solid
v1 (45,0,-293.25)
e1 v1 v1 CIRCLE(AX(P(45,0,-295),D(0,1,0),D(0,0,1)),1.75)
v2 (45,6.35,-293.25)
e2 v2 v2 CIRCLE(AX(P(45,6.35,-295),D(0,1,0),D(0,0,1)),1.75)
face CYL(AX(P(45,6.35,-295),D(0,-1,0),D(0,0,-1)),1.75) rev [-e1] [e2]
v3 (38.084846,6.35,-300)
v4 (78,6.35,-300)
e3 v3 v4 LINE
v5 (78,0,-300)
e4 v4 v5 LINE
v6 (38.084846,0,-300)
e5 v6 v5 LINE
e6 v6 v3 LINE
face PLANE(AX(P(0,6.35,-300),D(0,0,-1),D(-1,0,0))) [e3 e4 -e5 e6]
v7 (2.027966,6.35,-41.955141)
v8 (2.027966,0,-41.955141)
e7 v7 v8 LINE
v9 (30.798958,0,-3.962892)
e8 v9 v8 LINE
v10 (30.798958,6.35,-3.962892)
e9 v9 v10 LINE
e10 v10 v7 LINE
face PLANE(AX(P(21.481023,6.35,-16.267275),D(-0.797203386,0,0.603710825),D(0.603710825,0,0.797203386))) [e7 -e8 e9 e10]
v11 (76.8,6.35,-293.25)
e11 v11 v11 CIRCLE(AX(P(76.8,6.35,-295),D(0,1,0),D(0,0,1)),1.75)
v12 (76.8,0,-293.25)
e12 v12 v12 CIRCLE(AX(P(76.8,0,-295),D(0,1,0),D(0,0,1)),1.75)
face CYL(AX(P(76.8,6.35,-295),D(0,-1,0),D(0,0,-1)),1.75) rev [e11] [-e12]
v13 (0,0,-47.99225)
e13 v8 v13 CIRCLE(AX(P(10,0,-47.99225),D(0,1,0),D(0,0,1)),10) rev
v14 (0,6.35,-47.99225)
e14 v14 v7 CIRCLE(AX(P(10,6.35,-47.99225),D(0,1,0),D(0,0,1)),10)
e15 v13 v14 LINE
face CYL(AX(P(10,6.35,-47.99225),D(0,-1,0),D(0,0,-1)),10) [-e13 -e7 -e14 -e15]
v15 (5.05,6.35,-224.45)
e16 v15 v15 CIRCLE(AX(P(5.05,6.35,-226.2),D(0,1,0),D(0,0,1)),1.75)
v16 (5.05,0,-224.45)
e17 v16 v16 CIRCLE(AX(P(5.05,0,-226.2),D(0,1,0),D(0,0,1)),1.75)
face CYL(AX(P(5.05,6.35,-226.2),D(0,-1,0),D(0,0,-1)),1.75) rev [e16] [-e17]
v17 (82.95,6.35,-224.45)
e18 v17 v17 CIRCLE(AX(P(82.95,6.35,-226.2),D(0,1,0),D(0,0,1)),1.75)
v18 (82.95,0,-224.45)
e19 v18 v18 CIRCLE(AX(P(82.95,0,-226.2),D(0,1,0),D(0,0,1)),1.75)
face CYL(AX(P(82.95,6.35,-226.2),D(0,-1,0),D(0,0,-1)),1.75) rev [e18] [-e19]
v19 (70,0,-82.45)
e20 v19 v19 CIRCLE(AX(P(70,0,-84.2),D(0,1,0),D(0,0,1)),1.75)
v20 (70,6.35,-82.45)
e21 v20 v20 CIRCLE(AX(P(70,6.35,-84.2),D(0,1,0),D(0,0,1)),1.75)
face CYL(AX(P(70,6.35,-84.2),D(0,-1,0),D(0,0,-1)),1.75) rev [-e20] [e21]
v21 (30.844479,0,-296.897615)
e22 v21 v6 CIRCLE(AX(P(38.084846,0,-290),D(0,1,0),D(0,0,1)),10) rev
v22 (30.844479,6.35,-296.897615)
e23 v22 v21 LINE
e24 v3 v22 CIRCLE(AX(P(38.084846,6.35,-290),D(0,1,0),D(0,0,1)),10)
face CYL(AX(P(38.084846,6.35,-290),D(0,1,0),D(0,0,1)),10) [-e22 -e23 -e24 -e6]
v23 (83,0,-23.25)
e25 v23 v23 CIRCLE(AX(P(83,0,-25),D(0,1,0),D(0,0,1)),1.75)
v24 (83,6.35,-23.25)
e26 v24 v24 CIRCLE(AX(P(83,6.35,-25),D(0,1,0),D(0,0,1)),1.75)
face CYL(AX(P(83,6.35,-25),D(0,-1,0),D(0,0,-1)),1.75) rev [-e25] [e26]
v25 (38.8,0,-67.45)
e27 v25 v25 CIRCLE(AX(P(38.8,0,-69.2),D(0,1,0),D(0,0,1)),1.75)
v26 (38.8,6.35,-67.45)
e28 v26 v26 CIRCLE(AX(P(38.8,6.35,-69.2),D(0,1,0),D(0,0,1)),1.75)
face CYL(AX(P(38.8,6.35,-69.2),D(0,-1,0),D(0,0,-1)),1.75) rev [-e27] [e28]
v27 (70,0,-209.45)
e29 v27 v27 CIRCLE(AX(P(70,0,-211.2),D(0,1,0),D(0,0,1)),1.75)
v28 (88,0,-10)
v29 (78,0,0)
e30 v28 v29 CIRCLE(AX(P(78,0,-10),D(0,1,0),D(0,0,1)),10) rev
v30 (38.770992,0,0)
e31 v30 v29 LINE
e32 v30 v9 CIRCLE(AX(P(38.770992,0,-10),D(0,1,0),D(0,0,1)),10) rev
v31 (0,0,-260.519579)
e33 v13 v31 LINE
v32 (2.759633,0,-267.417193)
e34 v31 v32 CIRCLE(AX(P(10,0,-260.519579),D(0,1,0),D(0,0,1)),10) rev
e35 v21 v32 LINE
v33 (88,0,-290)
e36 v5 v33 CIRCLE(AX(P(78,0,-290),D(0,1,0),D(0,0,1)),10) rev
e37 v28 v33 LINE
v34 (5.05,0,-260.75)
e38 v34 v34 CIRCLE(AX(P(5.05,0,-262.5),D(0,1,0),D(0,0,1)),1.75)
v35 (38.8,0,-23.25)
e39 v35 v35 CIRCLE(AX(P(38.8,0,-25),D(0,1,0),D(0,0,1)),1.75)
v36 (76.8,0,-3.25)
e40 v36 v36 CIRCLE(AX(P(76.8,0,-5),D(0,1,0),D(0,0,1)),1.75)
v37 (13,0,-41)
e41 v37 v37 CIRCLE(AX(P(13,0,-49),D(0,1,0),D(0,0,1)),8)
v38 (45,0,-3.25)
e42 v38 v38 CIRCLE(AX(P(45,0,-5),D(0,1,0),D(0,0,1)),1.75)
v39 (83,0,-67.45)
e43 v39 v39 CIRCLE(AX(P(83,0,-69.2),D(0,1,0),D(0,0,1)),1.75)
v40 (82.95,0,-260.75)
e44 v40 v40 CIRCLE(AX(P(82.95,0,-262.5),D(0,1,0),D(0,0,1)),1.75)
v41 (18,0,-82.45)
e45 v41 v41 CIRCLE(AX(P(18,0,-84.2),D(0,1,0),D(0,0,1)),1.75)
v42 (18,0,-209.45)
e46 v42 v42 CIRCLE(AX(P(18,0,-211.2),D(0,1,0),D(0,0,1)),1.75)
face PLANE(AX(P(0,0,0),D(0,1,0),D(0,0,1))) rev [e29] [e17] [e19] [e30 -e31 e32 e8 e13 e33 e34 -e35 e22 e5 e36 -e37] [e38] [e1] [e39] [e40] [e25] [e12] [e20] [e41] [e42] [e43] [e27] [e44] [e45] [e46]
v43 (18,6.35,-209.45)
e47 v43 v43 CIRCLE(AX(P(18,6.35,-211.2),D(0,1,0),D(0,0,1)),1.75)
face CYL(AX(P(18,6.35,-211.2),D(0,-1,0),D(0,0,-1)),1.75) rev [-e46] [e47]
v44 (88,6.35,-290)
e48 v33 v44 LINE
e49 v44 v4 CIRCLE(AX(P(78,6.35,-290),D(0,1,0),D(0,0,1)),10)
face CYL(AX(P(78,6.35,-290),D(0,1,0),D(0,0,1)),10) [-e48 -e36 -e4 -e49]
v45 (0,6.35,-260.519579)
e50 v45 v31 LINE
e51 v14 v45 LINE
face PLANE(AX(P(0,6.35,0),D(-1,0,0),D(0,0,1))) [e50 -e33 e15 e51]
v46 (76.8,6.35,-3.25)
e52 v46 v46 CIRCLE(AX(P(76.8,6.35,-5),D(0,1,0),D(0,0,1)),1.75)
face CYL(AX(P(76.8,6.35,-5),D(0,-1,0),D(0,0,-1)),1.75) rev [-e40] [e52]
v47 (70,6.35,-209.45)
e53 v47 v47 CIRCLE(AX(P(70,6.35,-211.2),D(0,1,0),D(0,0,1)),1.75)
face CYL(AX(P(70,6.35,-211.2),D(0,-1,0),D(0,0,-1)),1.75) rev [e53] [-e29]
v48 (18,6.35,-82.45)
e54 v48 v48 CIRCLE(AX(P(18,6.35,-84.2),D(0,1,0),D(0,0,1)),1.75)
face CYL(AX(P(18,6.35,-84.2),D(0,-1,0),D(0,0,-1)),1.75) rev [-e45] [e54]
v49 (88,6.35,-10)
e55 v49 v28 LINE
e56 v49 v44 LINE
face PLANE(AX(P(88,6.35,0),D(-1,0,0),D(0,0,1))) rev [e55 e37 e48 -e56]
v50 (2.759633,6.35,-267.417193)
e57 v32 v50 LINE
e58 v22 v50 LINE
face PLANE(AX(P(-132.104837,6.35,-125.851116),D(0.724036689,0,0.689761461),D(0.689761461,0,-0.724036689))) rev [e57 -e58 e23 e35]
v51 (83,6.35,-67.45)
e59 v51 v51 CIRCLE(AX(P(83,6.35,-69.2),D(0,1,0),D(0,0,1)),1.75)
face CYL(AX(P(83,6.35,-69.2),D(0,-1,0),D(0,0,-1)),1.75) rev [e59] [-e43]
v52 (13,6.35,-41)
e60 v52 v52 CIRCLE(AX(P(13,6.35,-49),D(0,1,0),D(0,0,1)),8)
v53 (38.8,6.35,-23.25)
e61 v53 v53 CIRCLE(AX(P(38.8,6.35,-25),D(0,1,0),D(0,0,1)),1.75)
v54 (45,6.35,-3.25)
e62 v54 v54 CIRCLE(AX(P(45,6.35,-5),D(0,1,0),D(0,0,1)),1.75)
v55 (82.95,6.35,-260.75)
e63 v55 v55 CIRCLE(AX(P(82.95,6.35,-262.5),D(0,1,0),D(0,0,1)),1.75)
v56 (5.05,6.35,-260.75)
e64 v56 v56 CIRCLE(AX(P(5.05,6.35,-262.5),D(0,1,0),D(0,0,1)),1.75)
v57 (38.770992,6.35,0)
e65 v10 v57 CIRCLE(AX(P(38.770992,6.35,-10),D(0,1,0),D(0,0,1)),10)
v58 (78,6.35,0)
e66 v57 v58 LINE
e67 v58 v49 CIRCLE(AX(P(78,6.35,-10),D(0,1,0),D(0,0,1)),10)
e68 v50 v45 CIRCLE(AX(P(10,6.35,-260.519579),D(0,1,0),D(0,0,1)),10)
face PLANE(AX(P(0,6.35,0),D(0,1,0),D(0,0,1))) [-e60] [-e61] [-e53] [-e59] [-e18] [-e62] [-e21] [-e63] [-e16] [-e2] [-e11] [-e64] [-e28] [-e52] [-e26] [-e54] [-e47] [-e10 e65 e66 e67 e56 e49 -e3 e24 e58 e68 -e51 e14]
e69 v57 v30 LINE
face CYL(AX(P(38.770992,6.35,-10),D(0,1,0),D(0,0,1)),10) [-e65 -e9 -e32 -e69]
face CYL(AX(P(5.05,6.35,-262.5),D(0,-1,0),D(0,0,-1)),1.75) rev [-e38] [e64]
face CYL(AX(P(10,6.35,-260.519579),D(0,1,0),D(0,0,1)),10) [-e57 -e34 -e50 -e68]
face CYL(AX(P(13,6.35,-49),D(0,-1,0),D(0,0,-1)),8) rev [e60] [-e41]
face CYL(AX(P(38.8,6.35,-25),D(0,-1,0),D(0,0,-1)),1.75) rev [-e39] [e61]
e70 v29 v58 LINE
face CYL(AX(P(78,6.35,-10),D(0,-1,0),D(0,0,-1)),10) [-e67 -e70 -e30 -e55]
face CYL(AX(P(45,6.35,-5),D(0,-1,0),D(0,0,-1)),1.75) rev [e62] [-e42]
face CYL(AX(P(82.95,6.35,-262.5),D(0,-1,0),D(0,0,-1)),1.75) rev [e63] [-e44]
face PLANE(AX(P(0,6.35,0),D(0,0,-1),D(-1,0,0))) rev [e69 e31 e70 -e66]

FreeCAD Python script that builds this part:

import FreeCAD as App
import Part
import Sketcher

V = App.Vector


def edges_at(feature, points):
    """Names of the edges that pass closest to the given points."""
    edges = feature.Shape.Edges
    near = lambda p: min(range(len(edges)), key=lambda i: edges[i].distToShape(Part.Vertex(*p))[0])
    return sorted({f"Edge{near(p) + 1}" for p in points})

doc = App.newDocument("Part")
body = doc.addObject("PartDesign::Body", "Body")

sketch1 = body.newObject("Sketcher::SketchObject", "Sketch")
sketch1.AttachmentSupport = (doc.getObject("XZ_Plane"), [""])
sketch1.MapMode = "FlatFace"
sketch1.addGeometry([
    Part.LineSegment(V(0, -44.633081, 0), V(33.8, 0, 0)),
    Part.LineSegment(V(33.8, 0, 0), V(88, 0, 0)),
    Part.LineSegment(V(88, 0, 0), V(88, -300, 0)),
    Part.LineSegment(V(88, -300, 0), V(33.8, -300, 0)),
    Part.LineSegment(V(33.8, -300, 0), V(0, -264.52043, 0)),
    Part.LineSegment(V(0, -264.52043, 0), V(0, -44.633081, 0)),
    Part.Circle(V(13, -49, 0), V(0, 0, 1), 8),
    Part.Circle(V(38.8, -25, 0), V(0, 0, 1), 1.75),
    Part.Circle(V(38.8, -69.2, 0), V(0, 0, 1), 1.75),
    Part.Circle(V(18, -84.2, 0), V(0, 0, 1), 1.75),
    Part.Circle(V(45, -5, 0), V(0, 0, 1), 1.75),
    Part.Circle(V(76.8, -5, 0), V(0, 0, 1), 1.75),
    Part.Circle(V(83, -25, 0), V(0, 0, 1), 1.75),
    Part.Circle(V(83, -69.2, 0), V(0, 0, 1), 1.75),
    Part.Circle(V(70, -84.2, 0), V(0, 0, 1), 1.75),
    Part.Circle(V(18, -211.2, 0), V(0, 0, 1), 1.75),
    Part.Circle(V(5.05, -226.2, 0), V(0, 0, 1), 1.75),
    Part.Circle(V(5.05, -262.5, 0), V(0, 0, 1), 1.75),
    Part.Circle(V(70, -211.2, 0), V(0, 0, 1), 1.75),
    Part.Circle(V(45, -295, 0), V(0, 0, 1), 1.75),
    Part.Circle(V(82.95, -226.2, 0), V(0, 0, 1), 1.75),
    Part.Circle(V(82.95, -262.5, 0), V(0, 0, 1), 1.75),
    Part.Circle(V(76.8, -295, 0), V(0, 0, 1), 1.75),
], False)
sketch1.addConstraint([
    Sketcher.Constraint("Coincident", 0, 2, 1, 1),
    Sketcher.Constraint("Coincident", 1, 2, 2, 1),
    Sketcher.Constraint("Coincident", 2, 2, 3, 1),
    Sketcher.Constraint("Coincident", 3, 2, 4, 1),
    Sketcher.Constraint("Coincident", 4, 2, 5, 1),
    Sketcher.Constraint("Coincident", 5, 2, 0, 1),
    Sketcher.Constraint("Horizontal", 1),
    Sketcher.Constraint("Vertical", 2),
    Sketcher.Constraint("Horizontal", 3),
    Sketcher.Constraint("Vertical", 5),
    Sketcher.Constraint("Equal", 7, 8),
    Sketcher.Constraint("Equal", 8, 9),
    Sketcher.Constraint("Equal", 9, 10),
    Sketcher.Constraint("Equal", 10, 11),
    Sketcher.Constraint("Equal", 11, 12),
    Sketcher.Constraint("Equal", 12, 13),
    Sketcher.Constraint("Equal", 13, 14),
    Sketcher.Constraint("Equal", 14, 15),
    Sketcher.Constraint("Equal", 15, 16),
    Sketcher.Constraint("Equal", 16, 17),
    Sketcher.Constraint("Equal", 17, 18),
    Sketcher.Constraint("Equal", 18, 19),
    Sketcher.Constraint("Equal", 19, 20),
    Sketcher.Constraint("Equal", 20, 21),
    Sketcher.Constraint("Equal", 21, 22),
    Sketcher.Constraint("PointOnObject", 0, 2, -1),
    Sketcher.Constraint("PointOnObject", 4, 2, -2),
    Sketcher.Constraint("Horizontal", 10, 3, 11, 3),
    Sketcher.Constraint("Horizontal", 7, 3, 12, 3),
    Sketcher.Constraint("Horizontal", 8, 3, 13, 3),
    Sketcher.Constraint("Horizontal", 9, 3, 14, 3),
    Sketcher.Constraint("Horizontal", 15, 3, 18, 3),
    Sketcher.Constraint("Horizontal", 16, 3, 20, 3),
    Sketcher.Constraint("Horizontal", 17, 3, 21, 3),
    Sketcher.Constraint("Horizontal", 19, 3, 22, 3),
    Sketcher.Constraint("Vertical", 7, 3, 8, 3),
    Sketcher.Constraint("Vertical", 12, 3, 13, 3),
    Sketcher.Constraint("Vertical", 9, 3, 15, 3),
    Sketcher.Constraint("Vertical", 16, 3, 17, 3),
    Sketcher.Constraint("Vertical", 14, 3, 18, 3),
    Sketcher.Constraint("Vertical", 10, 3, 19, 3),
    Sketcher.Constraint("Vertical", 20, 3, 21, 3),
    Sketcher.Constraint("Vertical", 11, 3, 22, 3),
    Sketcher.Constraint("Vertical", 0, 2, 3, 2),
    Sketcher.Constraint("Diameter", 6, 16.0),
    Sketcher.Constraint("Diameter", 7, 3.5),
    Sketcher.Constraint("DistanceY", 2, 2, 2, 1, 300.0),
    Sketcher.Constraint("DistanceX", 1, 1, 1, 2, 54.2),
    Sketcher.Constraint("DistanceX", -1, 1, 6, 3, 13.0),
    Sketcher.Constraint("DistanceY", 6, 3, -1, 1, 49.0),
    Sketcher.Constraint("DistanceY", 7, 3, -1, 1, 25.0),
    Sketcher.Constraint("DistanceX", -1, 1, 9, 3, 18.0),
    Sketcher.Constraint("DistanceX", -1, 1, 10, 3, 45.0),
    Sketcher.Constraint("DistanceY", 10, 3, -1, 1, 5.0),
    Sketcher.Constraint("DistanceX", -1, 1, 12, 3, 83.0),
    Sketcher.Constraint("DistanceX", -1, 1, 14, 3, 70.0),
    Sketcher.Constraint("DistanceY", 19, 3, -1, 1, 295.0),
    Sketcher.Constraint("DistanceX", -1, 1, 1, 2, 88.0),
    Sketcher.Constraint("DistanceY", 9, 3, 8, 3, 15.0),
    Sketcher.Constraint("DistanceX", 7, 3, 11, 3, 38.0),
    Sketcher.Constraint("DistanceY", 15, 3, 9, 3, 127.0),
    Sketcher.Constraint("DistanceY", 16, 3, 15, 3, 15.0),
    Sketcher.Constraint("DistanceX", 0, 2, 7, 3, 5.0),
    Sketcher.Constraint("DistanceY", 8, 3, -1, 1, 69.2),
    Sketcher.Constraint("DistanceY", 17, 3, -1, 1, 262.5),
    Sketcher.Constraint("DistanceX", 16, 3, 20, 3, 77.9),
    Sketcher.Constraint("DistanceX", -1, 1, 16, 3, 5.05),
    Sketcher.Constraint("DistanceY", 5, 1, 5, 2, 219.887348),
    Sketcher.Constraint("Distance", 0, 55.98707),
])
pad1 = body.newObject("PartDesign::Pad", "Pad")
pad1.Profile = sketch1
pad1.Length = 6.35
pad1.Reversed = True
doc.recompute()

fillet = body.newObject("PartDesign::Fillet", "Fillet")
fillet.Base = (pad1, edges_at(pad1, [
    (88, 3.175, -300),
    (88, 3.175, 0),
    (33.8, 3.175, 0),
    (0, 3.175, -44.633),
    (0, 3.175, -264.52),
    (33.8, 3.175, -300),
]))
fillet.Radius = 10

doc.recompute()
